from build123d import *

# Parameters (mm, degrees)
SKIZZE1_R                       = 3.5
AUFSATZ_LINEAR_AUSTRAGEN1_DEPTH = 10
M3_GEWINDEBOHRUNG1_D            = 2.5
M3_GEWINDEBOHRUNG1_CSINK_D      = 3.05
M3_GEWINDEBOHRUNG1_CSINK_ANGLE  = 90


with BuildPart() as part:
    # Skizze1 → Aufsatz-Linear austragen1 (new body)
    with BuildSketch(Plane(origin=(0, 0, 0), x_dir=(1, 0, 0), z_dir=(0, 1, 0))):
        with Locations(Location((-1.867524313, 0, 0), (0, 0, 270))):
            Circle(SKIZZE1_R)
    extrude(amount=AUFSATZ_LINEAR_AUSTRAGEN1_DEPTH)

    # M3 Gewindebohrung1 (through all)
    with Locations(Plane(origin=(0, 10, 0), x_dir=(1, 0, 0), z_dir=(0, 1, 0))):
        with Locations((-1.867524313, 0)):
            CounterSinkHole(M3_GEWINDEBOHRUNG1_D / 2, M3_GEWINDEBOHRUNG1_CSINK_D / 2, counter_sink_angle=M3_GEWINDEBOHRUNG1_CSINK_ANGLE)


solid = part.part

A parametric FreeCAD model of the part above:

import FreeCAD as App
import Part
import Sketcher

doc = App.newDocument("Part")
body = doc.addObject("PartDesign::Body", "Body")

sketch1 = body.newObject("Sketcher::SketchObject", "Sketch")
sketch1.AttachmentSupport = (doc.getObject("XZ_Plane"), [""])
sketch1.MapMode = "FlatFace"
sketch1.addGeometry(Part.Circle(App.Vector(-1.9, 0, 0), App.Vector(0, 0, 1), 3.5), False)
sketch1.addConstraint([
    Sketcher.Constraint("PointOnObject", 0, 3, -1),
    Sketcher.Constraint("Diameter", 0, 7.0),
    Sketcher.Constraint("DistanceX", 0, 3, -1, 1, 1.867524),
])
pad1 = body.newObject("PartDesign::Pad", "Pad")
pad1.Profile = sketch1
pad1.Length = 10
pad1.Reversed = True

sketch2 = body.newObject("Sketcher::SketchObject", "Sketch001")
sketch2.AttachmentSupport = (doc.getObject("XZ_Plane"), [""])
sketch2.MapMode = "FlatFace"
sketch2.AttachmentOffset = App.Placement(App.Vector(0, 0, -10), App.Rotation())
sketch2.addGeometry(Part.Circle(App.Vector(-1.9, 0, 0), App.Vector(0, 0, 1), 1.2), False)
sketch2.addConstraint([
    Sketcher.Constraint("PointOnObject", 0, 3, -1),
    Sketcher.Constraint("Diameter", 0, 2.5),
    Sketcher.Constraint("DistanceX", 0, 3, -1, 1, 1.867524),
])
doc.recompute()
hole = body.newObject("PartDesign::Hole", "Hole")
hole.Profile = sketch2
hole.ThreadType = "None"
hole.Diameter = 2.5
hole.DepthType = "ThroughAll"
hole.HoleCutType = "Countersink"
hole.HoleCutDiameter = 3.05
hole.HoleCutCountersinkAngle = 90
hole.Reversed = True

doc.recompute()
